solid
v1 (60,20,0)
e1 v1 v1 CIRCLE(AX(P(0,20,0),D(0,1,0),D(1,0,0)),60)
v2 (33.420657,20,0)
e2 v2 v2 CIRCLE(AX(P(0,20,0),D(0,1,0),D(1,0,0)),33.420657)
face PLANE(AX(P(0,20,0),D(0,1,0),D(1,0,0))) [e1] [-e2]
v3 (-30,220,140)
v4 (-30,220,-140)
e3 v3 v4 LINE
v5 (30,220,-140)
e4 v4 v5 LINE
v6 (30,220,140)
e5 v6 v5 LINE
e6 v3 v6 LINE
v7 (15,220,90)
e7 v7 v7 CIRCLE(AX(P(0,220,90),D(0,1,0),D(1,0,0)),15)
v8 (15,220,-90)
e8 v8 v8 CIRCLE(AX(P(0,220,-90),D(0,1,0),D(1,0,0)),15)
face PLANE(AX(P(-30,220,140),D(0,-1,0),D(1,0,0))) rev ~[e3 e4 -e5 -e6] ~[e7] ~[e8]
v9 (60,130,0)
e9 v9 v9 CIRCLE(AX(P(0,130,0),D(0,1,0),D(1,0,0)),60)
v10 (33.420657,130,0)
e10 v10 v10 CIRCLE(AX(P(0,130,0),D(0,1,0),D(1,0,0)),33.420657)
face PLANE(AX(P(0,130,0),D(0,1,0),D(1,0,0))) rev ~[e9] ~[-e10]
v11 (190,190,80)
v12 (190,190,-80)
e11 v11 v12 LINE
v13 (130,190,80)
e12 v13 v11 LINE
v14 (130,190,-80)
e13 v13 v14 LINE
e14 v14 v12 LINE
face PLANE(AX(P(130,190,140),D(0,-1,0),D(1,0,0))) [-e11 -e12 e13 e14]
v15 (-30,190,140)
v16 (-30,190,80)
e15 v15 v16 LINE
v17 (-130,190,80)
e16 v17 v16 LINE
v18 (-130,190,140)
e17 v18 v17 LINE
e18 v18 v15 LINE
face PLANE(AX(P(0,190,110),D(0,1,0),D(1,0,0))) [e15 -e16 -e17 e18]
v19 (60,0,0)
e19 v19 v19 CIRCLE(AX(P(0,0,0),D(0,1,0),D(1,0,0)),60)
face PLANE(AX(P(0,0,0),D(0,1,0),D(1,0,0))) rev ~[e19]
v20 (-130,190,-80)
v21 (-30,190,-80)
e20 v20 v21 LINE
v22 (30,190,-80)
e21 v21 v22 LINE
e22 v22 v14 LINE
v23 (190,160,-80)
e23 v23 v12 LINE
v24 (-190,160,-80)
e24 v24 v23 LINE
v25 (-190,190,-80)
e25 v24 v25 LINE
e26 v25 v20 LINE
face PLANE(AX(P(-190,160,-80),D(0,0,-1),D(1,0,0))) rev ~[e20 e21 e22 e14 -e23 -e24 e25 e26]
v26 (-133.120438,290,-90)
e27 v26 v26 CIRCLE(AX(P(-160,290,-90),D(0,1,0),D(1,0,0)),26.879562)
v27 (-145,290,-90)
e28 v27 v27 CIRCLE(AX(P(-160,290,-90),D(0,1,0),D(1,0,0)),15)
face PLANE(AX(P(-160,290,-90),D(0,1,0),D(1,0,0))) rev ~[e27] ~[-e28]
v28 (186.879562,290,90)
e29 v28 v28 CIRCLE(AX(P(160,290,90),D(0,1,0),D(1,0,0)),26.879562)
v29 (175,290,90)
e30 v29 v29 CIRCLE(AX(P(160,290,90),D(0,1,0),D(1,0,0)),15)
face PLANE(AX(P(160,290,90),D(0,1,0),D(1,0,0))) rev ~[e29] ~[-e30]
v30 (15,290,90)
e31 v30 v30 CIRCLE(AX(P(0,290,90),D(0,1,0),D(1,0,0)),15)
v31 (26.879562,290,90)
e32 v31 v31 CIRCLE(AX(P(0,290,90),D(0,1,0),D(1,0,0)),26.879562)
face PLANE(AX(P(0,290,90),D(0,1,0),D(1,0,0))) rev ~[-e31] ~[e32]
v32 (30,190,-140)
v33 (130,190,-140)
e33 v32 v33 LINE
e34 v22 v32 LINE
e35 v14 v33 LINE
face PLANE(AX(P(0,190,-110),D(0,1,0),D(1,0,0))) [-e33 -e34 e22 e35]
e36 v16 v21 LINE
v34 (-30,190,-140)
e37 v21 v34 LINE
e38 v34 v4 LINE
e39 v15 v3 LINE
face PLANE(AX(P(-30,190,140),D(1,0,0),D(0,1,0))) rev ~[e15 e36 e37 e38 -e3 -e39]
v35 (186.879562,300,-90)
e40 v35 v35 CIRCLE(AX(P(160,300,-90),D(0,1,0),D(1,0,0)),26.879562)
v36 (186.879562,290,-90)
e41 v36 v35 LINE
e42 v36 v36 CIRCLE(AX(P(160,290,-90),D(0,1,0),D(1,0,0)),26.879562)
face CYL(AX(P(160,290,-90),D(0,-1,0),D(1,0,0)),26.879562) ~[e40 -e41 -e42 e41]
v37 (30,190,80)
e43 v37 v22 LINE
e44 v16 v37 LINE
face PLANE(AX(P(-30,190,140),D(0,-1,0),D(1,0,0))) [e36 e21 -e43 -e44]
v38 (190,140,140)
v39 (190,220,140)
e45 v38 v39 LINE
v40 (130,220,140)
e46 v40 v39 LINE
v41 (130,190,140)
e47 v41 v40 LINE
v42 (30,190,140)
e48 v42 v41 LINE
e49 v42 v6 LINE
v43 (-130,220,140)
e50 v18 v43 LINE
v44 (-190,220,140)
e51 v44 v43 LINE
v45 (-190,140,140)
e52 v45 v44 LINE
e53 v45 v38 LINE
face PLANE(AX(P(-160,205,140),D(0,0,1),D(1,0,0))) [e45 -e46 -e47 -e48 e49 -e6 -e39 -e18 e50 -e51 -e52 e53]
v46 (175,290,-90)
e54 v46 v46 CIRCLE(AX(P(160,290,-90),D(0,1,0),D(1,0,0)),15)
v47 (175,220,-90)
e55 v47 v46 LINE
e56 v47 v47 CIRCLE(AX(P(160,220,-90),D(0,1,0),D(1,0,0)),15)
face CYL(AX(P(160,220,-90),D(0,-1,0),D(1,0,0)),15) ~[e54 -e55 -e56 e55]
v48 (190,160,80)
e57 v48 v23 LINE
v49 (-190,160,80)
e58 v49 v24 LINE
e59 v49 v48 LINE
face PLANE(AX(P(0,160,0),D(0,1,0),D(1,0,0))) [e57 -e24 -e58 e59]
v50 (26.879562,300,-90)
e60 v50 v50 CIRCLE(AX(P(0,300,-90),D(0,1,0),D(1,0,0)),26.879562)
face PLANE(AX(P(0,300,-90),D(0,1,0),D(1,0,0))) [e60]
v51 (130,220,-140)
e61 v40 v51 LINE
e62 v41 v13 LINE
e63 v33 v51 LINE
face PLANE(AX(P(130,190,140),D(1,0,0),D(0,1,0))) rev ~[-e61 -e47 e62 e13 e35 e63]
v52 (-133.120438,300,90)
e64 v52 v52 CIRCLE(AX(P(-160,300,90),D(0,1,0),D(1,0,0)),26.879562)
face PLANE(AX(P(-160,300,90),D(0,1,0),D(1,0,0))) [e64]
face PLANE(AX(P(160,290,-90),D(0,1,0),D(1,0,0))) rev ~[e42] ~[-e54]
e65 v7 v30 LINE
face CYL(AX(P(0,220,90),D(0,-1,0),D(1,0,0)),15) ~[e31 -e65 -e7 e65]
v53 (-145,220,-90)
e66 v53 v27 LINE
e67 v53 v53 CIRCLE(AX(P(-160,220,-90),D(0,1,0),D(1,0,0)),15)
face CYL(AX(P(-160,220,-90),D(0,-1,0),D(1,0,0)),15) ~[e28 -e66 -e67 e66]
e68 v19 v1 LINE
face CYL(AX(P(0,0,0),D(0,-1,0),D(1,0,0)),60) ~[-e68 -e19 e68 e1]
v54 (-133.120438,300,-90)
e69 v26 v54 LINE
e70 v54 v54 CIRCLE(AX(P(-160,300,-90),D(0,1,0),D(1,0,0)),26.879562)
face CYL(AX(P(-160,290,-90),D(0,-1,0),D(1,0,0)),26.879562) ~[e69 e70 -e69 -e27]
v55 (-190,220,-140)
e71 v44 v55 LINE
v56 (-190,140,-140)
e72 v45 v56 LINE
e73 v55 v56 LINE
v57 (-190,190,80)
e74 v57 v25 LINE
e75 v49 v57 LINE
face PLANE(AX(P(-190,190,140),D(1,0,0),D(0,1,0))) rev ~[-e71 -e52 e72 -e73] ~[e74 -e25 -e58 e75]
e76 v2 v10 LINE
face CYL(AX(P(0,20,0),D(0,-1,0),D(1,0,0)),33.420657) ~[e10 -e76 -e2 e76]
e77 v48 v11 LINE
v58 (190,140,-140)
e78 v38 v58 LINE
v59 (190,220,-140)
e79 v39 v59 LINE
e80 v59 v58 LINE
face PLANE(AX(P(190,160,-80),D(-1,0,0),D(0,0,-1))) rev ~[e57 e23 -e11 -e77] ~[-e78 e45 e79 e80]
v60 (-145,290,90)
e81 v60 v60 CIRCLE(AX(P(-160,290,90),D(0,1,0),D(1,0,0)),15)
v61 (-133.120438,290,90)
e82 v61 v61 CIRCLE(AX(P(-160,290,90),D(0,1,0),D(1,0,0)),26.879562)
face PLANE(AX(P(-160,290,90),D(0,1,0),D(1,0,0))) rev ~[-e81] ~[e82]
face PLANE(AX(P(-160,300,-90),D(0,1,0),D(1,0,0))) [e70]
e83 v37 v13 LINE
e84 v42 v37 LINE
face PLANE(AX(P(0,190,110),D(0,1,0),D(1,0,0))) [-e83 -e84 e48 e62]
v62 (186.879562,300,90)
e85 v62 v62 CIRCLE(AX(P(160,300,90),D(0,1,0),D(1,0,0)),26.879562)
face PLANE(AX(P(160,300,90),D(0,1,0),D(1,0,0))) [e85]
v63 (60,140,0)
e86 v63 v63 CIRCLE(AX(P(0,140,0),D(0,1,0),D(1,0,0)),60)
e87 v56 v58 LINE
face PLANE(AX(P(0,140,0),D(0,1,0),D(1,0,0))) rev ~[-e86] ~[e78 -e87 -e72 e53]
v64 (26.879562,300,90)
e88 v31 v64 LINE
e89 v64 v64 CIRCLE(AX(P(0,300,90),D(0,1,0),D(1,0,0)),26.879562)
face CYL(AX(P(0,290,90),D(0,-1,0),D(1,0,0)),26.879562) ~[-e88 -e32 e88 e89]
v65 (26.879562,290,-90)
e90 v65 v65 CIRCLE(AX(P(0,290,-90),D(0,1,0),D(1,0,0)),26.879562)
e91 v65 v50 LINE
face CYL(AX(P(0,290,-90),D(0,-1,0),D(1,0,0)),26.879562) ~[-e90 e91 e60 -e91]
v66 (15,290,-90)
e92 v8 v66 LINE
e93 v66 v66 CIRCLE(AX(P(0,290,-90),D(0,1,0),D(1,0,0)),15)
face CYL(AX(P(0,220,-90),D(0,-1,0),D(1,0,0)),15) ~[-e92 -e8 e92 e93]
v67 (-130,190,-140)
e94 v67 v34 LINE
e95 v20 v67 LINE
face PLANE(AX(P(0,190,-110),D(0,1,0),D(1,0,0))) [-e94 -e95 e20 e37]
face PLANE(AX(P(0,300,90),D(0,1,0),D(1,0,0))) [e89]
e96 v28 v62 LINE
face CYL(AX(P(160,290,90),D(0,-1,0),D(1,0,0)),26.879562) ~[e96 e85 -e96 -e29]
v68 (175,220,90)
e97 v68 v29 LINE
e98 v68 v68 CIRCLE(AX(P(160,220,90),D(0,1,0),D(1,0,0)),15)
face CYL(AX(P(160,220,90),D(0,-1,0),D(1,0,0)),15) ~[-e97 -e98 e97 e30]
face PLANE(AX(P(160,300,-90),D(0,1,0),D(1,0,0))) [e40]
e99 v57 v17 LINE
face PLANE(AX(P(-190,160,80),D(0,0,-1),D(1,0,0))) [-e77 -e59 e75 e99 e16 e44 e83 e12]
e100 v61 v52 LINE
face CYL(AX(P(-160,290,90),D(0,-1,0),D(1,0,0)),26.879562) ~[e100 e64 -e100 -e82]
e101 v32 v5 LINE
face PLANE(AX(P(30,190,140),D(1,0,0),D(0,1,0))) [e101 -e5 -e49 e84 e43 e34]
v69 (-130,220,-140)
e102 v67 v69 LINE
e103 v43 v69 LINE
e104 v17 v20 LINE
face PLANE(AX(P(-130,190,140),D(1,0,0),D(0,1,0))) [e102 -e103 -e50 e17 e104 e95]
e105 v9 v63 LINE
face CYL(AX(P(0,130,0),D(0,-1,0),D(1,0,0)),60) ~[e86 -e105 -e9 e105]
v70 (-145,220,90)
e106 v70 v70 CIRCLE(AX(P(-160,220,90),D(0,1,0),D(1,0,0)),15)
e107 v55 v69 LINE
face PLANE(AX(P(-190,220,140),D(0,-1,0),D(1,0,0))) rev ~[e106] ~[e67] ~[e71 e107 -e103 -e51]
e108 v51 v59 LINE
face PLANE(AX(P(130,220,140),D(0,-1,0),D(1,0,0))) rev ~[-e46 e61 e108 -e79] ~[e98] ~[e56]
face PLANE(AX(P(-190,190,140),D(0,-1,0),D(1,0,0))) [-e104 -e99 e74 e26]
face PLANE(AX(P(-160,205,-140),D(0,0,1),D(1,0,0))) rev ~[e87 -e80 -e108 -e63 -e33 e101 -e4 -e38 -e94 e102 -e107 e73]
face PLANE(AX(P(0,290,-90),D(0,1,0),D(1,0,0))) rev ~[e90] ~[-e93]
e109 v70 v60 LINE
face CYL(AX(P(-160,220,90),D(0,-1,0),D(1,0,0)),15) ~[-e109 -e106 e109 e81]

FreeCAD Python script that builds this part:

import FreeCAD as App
import Part
import Sketcher
from FreeCAD import Vector


def add_polygon(sketch, points):
    """Adds a closed chain of lines whose ends are joined by coincident constraints."""
    first, n = sketch.GeometryCount, len(points)
    for a, b in zip(points, points[1:] + points[:1]):
        sketch.addGeometry(Part.LineSegment(App.Vector(*a, 0), App.Vector(*b, 0)), False)
    for i in range(n):
        sketch.addConstraint(Sketcher.Constraint("Coincident", first + i, 2, first + (i + 1) % n, 1))

doc = App.newDocument("Part")
params = doc.addObject("Spreadsheet::Sheet", "Params")
for row, (alias, value) in enumerate([
    ("sketch1_diameter", "120 mm"),
    ("pad1_length", "20 mm"),
    ("pad2_length", "110 mm"),
    ("sketch3_diameter", "120 mm"),
    ("pad3_length", "10 mm"),
    ("sketch4_width", "380 mm"),
    ("sketch4_height", "280 mm"),
    ("pad4_length", "20 mm"),
    ("sketch5_width", "380 mm"),
    ("sketch5_height", "60 mm"),
    ("pad5_length", "30 mm"),
    ("sketch6_width", "60 mm"),
    ("sketch6_height", "30 mm"),
    ("pad6_length", "280 mm"),
    ("sketch7_diameter", "30 mm"),
    ("pad7_length", "70 mm"),
    ("pad8_length", "10 mm"),
], start=1):
    params.set(f"A{row}", alias)
    params.set(f"B{row}", "=" + value)
    params.setAlias(f"B{row}", alias)

body = doc.addObject("PartDesign::Body", "Body")

sketch1 = body.newObject("Sketcher::SketchObject", "Sketch")
sketch1.AttachmentSupport = (doc.getObject("XZ_Plane"), [""])
sketch1.MapMode = "FlatFace"
sketch1.addGeometry(Part.Circle(Vector(0, 0, 0), Vector(0, 0, 1), 60), False)
sketch1.addConstraint(Sketcher.Constraint("Coincident", 0, 3, -1, 1))
sketch1.addConstraint(Sketcher.Constraint("Diameter", 0, 120.0))
sketch1.setExpression("Constraints[1]", "Params.sketch1_diameter")
pad1 = body.newObject("PartDesign::Pad", "Pad")
pad1.Profile = sketch1
pad1.setExpression("Length", "Params.pad1_length")
pad1.Reversed = True

sketch2 = body.newObject("Sketcher::SketchObject", "Sketch001")
sketch2.AttachmentSupport = (doc.getObject("XZ_Plane"), [""])
sketch2.MapMode = "FlatFace"
sketch2.AttachmentOffset = App.Placement(Vector(0, 0, -20), App.Rotation())
sketch2.addGeometry(Part.Circle(Vector(0, 0, 0), Vector(0, 0, 1), 33.420657), False)
sketch2.addConstraint(Sketcher.Constraint("Coincident", 0, 3, -1, 1))
sketch2.addConstraint(Sketcher.Constraint("Diameter", 0, 66.841314))
pad2 = body.newObject("PartDesign::Pad", "Pad001")
pad2.Profile = sketch2
pad2.setExpression("Length", "Params.pad2_length")
pad2.Reversed = True

sketch3 = body.newObject("Sketcher::SketchObject", "Sketch002")
sketch3.AttachmentSupport = (doc.getObject("XZ_Plane"), [""])
sketch3.MapMode = "FlatFace"
sketch3.AttachmentOffset = App.Placement(Vector(0, 0, -130), App.Rotation())
sketch3.addGeometry(Part.Circle(Vector(0, 0, 0), Vector(0, 0, 1), 60), False)
sketch3.addConstraint(Sketcher.Constraint("Coincident", 0, 3, -1, 1))
sketch3.addConstraint(Sketcher.Constraint("Diameter", 0, 120.0))
sketch3.setExpression("Constraints[1]", "Params.sketch3_diameter")
pad3 = body.newObject("PartDesign::Pad", "Pad002")
pad3.Profile = sketch3
pad3.setExpression("Length", "Params.pad3_length")
pad3.Reversed = True

sketch4 = body.newObject("Sketcher::SketchObject", "Sketch003")
sketch4.AttachmentSupport = (doc.getObject("XZ_Plane"), [""])
sketch4.MapMode = "FlatFace"
sketch4.AttachmentOffset = App.Placement(Vector(0, 0, -140), App.Rotation())
add_polygon(sketch4, [(-190, -140), (-190, 140), (190, 140), (190, -140)])
sketch4.addConstraint(Sketcher.Constraint("Vertical", 0))
sketch4.addConstraint(Sketcher.Constraint("Horizontal", 1))
sketch4.addConstraint(Sketcher.Constraint("Vertical", 2))
sketch4.addConstraint(Sketcher.Constraint("Horizontal", 3))
sketch4.addConstraint(Sketcher.Constraint("Symmetric", 0, 2, 2, 2, -1, 1))
sketch4.addConstraint(Sketcher.Constraint("DistanceX", 1, 1, 1, 2, 380.0))
sketch4.addConstraint(Sketcher.Constraint("DistanceY", 0, 1, 0, 2, 280.0))
sketch4.setExpression("Constraints[9]", "Params.sketch4_width")
sketch4.setExpression("Constraints[10]", "Params.sketch4_height")
pad4 = body.newObject("PartDesign::Pad", "Pad003")
pad4.Profile = sketch4
pad4.setExpression("Length", "Params.pad4_length")
pad4.Reversed = True

sketch5 = body.newObject("Sketcher::SketchObject", "Sketch004")
sketch5.AttachmentSupport = (doc.getObject("XZ_Plane"), [""])
sketch5.MapMode = "FlatFace"
sketch5.AttachmentOffset = App.Placement(Vector(0, 0, -160), App.Rotation())
add_polygon(sketch5, [(-190, -140), (-190, -80), (190, -80), (190, -140)])
add_polygon(sketch5, [(-190, 80), (-190, 140), (190, 140), (190, 80)])
sketch5.addConstraint(Sketcher.Constraint("Vertical", 0))
sketch5.addConstraint(Sketcher.Constraint("Horizontal", 1))
sketch5.addConstraint(Sketcher.Constraint("Vertical", 2))
sketch5.addConstraint(Sketcher.Constraint("Horizontal", 3))
sketch5.addConstraint(Sketcher.Constraint("Vertical", 4))
sketch5.addConstraint(Sketcher.Constraint("Horizontal", 5))
sketch5.addConstraint(Sketcher.Constraint("Vertical", 6))
sketch5.addConstraint(Sketcher.Constraint("Horizontal", 7))
sketch5.addConstraint(Sketcher.Constraint("Symmetric", 2, 2, 4, 2, -1, 1))
sketch5.addConstraint(Sketcher.Constraint("Symmetric", 0, 2, 6, 2, -1, 1))
sketch5.addConstraint(Sketcher.Constraint("Vertical", 3, 2, 4, 2))
sketch5.addConstraint(Sketcher.Constraint("DistanceX", 1, 1, 1, 2, 380.0))
sketch5.addConstraint(Sketcher.Constraint("DistanceY", 0, 1, 0, 2, 60.0))
sketch5.addConstraint(Sketcher.Constraint("DistanceY", 0, 2, -1, 1, 80.0))
sketch5.setExpression("Constraints[19]", "Params.sketch5_width")
sketch5.setExpression("Constraints[20]", "Params.sketch5_height")
pad5 = body.newObject("PartDesign::Pad", "Pad004")
pad5.Profile = sketch5
pad5.setExpression("Length", "Params.pad5_length")
pad5.Reversed = True

sketch6 = body.newObject("Sketcher::SketchObject", "Sketch005")
sketch6.AttachmentSupport = (doc.getObject("XY_Plane"), [""])
sketch6.MapMode = "FlatFace"
sketch6.AttachmentOffset = App.Placement(Vector(0, 0, 140), App.Rotation())
add_polygon(sketch6, [(-190, 220), (-190, 190), (-130, 190), (-130, 220)])
add_polygon(sketch6, [(-30, 220), (-30, 190), (30, 190), (30, 220)])
add_polygon(sketch6, [(130, 220), (130, 190), (190, 190), (190, 220)])
sketch6.addConstraint(Sketcher.Constraint("Vertical", 0))
sketch6.addConstraint(Sketcher.Constraint("Horizontal", 1))
sketch6.addConstraint(Sketcher.Constraint("Vertical", 2))
sketch6.addConstraint(Sketcher.Constraint("Horizontal", 3))
sketch6.addConstraint(Sketcher.Constraint("Vertical", 4))
sketch6.addConstraint(Sketcher.Constraint("Horizontal", 5))
sketch6.addConstraint(Sketcher.Constraint("Vertical", 6))
sketch6.addConstraint(Sketcher.Constraint("Horizontal", 7))
sketch6.addConstraint(Sketcher.Constraint("Vertical", 8))
sketch6.addConstraint(Sketcher.Constraint("Horizontal", 9))
sketch6.addConstraint(Sketcher.Constraint("Vertical", 10))
sketch6.addConstraint(Sketcher.Constraint("Horizontal", 11))
sketch6.addConstraint(Sketcher.Constraint("Symmetric", 1, 2, 8, 2, -2))
sketch6.addConstraint(Sketcher.Constraint("Symmetric", 3, 2, 10, 2, -2))
sketch6.addConstraint(Sketcher.Constraint("Horizontal", 1, 2, 4, 2))
sketch6.addConstraint(Sketcher.Constraint("Horizontal", 3, 2, 6, 2))
sketch6.addConstraint(Sketcher.Constraint("Equal", 3, 5))
sketch6.addConstraint(Sketcher.Constraint("DistanceX", 1, 1, 1, 2, 60.0))
sketch6.addConstraint(Sketcher.Constraint("DistanceY", 0, 2, 0, 1, 30.0))
sketch6.addConstraint(Sketcher.Constraint("DistanceX", 0, 2, -1, 1, 190.0))
sketch6.addConstraint(Sketcher.Constraint("DistanceY", -1, 1, 0, 2, 190.0))
sketch6.addConstraint(Sketcher.Constraint("DistanceX", 4, 2, -1, 1, 30.0))
sketch6.setExpression("Constraints[29]", "Params.sketch6_width")
sketch6.setExpression("Constraints[30]", "Params.sketch6_height")
pad6 = body.newObject("PartDesign::Pad", "Pad005")
pad6.Profile = sketch6
pad6.setExpression("Length", "Params.pad6_length")
pad6.Reversed = True

sketch7 = body.newObject("Sketcher::SketchObject", "Sketch006")
sketch7.AttachmentSupport = (doc.getObject("XZ_Plane"), [""])
sketch7.MapMode = "FlatFace"
sketch7.AttachmentOffset = App.Placement(Vector(0, 0, -220), App.Rotation())
sketch7.addGeometry(Part.Circle(Vector(-160, -90, 0), Vector(0, 0, 1), 15), False)
sketch7.addGeometry(Part.Circle(Vector(0, -90, 0), Vector(0, 0, 1), 15), False)
sketch7.addGeometry(Part.Circle(Vector(160, -90, 0), Vector(0, 0, 1), 15), False)
sketch7.addGeometry(Part.Circle(Vector(-160, 90, 0), Vector(0, 0, 1), 15), False)
sketch7.addGeometry(Part.Circle(Vector(0, 90, 0), Vector(0, 0, 1), 15), False)
sketch7.addGeometry(Part.Circle(Vector(160, 90, 0), Vector(0, 0, 1), 15), False)
sketch7.addConstraint(Sketcher.Constraint("Equal", 0, 1))
sketch7.addConstraint(Sketcher.Constraint("Equal", 1, 2))
sketch7.addConstraint(Sketcher.Constraint("Equal", 2, 3))
sketch7.addConstraint(Sketcher.Constraint("Equal", 3, 4))
sketch7.addConstraint(Sketcher.Constraint("Equal", 4, 5))
sketch7.addConstraint(Sketcher.Constraint("Symmetric", 2, 3, 3, 3, -1, 1))
sketch7.addConstraint(Sketcher.Constraint("Symmetric", 1, 3, 4, 3, -1, 1))
sketch7.addConstraint(Sketcher.Constraint("Symmetric", 0, 3, 5, 3, -1, 1))
sketch7.addConstraint(Sketcher.Constraint("Symmetric", 0, 3, 2, 3, -2))
sketch7.addConstraint(Sketcher.Constraint("PointOnObject", 1, 3, -2))
sketch7.addConstraint(Sketcher.Constraint("Horizontal", 0, 3, 1, 3))
sketch7.addConstraint(Sketcher.Constraint("Diameter", 0, 30.0))
sketch7.addConstraint(Sketcher.Constraint("DistanceX", 0, 3, -1, 1, 160.0))
sketch7.addConstraint(Sketcher.Constraint("DistanceY", 0, 3, -1, 1, 90.0))
sketch7.setExpression("Constraints[11]", "Params.sketch7_diameter")
pad7 = body.newObject("PartDesign::Pad", "Pad006")
pad7.Profile = sketch7
pad7.setExpression("Length", "Params.pad7_length")
pad7.Reversed = True

sketch8 = body.newObject("Sketcher::SketchObject", "Sketch007")
sketch8.AttachmentSupport = (doc.getObject("XZ_Plane"), [""])
sketch8.MapMode = "FlatFace"
sketch8.AttachmentOffset = App.Placement(Vector(0, 0, -290), App.Rotation())
sketch8.addGeometry(Part.Circle(Vector(-160, -90, 0), Vector(0, 0, 1), 26.879562), False)
sketch8.addGeometry(Part.Circle(Vector(0, -90, 0), Vector(0, 0, 1), 26.879562), False)
sketch8.addGeometry(Part.Circle(Vector(160, -90, 0), Vector(0, 0, 1), 26.879562), False)
sketch8.addGeometry(Part.Circle(Vector(-160, 90, 0), Vector(0, 0, 1), 26.879562), False)
sketch8.addGeometry(Part.Circle(Vector(0, 90, 0), Vector(0, 0, 1), 26.879562), False)
sketch8.addGeometry(Part.Circle(Vector(160, 90, 0), Vector(0, 0, 1), 26.879562), False)
sketch8.addConstraint(Sketcher.Constraint("Equal", 0, 1))
sketch8.addConstraint(Sketcher.Constraint("Equal", 1, 2))
sketch8.addConstraint(Sketcher.Constraint("Equal", 2, 3))
sketch8.addConstraint(Sketcher.Constraint("Equal", 3, 4))
sketch8.addConstraint(Sketcher.Constraint("Equal", 4, 5))
sketch8.addConstraint(Sketcher.Constraint("Symmetric", 2, 3, 3, 3, -1, 1))
sketch8.addConstraint(Sketcher.Constraint("Symmetric", 1, 3, 4, 3, -1, 1))
sketch8.addConstraint(Sketcher.Constraint("Symmetric", 0, 3, 5, 3, -1, 1))
sketch8.addConstraint(Sketcher.Constraint("Symmetric", 0, 3, 2, 3, -2))
sketch8.addConstraint(Sketcher.Constraint("PointOnObject", 1, 3, -2))
sketch8.addConstraint(Sketcher.Constraint("Horizontal", 0, 3, 1, 3))
sketch8.addConstraint(Sketcher.Constraint("DistanceX", 0, 3, -1, 1, 160.0))
sketch8.addConstraint(Sketcher.Constraint("DistanceY", 0, 3, -1, 1, 90.0))
sketch8.addConstraint(Sketcher.Constraint("Diameter", 0, 53.759124))
pad8 = body.newObject("PartDesign::Pad", "Pad007")
pad8.Profile = sketch8
pad8.setExpression("Length", "Params.pad8_length")
pad8.Reversed = True

doc.recompute()
